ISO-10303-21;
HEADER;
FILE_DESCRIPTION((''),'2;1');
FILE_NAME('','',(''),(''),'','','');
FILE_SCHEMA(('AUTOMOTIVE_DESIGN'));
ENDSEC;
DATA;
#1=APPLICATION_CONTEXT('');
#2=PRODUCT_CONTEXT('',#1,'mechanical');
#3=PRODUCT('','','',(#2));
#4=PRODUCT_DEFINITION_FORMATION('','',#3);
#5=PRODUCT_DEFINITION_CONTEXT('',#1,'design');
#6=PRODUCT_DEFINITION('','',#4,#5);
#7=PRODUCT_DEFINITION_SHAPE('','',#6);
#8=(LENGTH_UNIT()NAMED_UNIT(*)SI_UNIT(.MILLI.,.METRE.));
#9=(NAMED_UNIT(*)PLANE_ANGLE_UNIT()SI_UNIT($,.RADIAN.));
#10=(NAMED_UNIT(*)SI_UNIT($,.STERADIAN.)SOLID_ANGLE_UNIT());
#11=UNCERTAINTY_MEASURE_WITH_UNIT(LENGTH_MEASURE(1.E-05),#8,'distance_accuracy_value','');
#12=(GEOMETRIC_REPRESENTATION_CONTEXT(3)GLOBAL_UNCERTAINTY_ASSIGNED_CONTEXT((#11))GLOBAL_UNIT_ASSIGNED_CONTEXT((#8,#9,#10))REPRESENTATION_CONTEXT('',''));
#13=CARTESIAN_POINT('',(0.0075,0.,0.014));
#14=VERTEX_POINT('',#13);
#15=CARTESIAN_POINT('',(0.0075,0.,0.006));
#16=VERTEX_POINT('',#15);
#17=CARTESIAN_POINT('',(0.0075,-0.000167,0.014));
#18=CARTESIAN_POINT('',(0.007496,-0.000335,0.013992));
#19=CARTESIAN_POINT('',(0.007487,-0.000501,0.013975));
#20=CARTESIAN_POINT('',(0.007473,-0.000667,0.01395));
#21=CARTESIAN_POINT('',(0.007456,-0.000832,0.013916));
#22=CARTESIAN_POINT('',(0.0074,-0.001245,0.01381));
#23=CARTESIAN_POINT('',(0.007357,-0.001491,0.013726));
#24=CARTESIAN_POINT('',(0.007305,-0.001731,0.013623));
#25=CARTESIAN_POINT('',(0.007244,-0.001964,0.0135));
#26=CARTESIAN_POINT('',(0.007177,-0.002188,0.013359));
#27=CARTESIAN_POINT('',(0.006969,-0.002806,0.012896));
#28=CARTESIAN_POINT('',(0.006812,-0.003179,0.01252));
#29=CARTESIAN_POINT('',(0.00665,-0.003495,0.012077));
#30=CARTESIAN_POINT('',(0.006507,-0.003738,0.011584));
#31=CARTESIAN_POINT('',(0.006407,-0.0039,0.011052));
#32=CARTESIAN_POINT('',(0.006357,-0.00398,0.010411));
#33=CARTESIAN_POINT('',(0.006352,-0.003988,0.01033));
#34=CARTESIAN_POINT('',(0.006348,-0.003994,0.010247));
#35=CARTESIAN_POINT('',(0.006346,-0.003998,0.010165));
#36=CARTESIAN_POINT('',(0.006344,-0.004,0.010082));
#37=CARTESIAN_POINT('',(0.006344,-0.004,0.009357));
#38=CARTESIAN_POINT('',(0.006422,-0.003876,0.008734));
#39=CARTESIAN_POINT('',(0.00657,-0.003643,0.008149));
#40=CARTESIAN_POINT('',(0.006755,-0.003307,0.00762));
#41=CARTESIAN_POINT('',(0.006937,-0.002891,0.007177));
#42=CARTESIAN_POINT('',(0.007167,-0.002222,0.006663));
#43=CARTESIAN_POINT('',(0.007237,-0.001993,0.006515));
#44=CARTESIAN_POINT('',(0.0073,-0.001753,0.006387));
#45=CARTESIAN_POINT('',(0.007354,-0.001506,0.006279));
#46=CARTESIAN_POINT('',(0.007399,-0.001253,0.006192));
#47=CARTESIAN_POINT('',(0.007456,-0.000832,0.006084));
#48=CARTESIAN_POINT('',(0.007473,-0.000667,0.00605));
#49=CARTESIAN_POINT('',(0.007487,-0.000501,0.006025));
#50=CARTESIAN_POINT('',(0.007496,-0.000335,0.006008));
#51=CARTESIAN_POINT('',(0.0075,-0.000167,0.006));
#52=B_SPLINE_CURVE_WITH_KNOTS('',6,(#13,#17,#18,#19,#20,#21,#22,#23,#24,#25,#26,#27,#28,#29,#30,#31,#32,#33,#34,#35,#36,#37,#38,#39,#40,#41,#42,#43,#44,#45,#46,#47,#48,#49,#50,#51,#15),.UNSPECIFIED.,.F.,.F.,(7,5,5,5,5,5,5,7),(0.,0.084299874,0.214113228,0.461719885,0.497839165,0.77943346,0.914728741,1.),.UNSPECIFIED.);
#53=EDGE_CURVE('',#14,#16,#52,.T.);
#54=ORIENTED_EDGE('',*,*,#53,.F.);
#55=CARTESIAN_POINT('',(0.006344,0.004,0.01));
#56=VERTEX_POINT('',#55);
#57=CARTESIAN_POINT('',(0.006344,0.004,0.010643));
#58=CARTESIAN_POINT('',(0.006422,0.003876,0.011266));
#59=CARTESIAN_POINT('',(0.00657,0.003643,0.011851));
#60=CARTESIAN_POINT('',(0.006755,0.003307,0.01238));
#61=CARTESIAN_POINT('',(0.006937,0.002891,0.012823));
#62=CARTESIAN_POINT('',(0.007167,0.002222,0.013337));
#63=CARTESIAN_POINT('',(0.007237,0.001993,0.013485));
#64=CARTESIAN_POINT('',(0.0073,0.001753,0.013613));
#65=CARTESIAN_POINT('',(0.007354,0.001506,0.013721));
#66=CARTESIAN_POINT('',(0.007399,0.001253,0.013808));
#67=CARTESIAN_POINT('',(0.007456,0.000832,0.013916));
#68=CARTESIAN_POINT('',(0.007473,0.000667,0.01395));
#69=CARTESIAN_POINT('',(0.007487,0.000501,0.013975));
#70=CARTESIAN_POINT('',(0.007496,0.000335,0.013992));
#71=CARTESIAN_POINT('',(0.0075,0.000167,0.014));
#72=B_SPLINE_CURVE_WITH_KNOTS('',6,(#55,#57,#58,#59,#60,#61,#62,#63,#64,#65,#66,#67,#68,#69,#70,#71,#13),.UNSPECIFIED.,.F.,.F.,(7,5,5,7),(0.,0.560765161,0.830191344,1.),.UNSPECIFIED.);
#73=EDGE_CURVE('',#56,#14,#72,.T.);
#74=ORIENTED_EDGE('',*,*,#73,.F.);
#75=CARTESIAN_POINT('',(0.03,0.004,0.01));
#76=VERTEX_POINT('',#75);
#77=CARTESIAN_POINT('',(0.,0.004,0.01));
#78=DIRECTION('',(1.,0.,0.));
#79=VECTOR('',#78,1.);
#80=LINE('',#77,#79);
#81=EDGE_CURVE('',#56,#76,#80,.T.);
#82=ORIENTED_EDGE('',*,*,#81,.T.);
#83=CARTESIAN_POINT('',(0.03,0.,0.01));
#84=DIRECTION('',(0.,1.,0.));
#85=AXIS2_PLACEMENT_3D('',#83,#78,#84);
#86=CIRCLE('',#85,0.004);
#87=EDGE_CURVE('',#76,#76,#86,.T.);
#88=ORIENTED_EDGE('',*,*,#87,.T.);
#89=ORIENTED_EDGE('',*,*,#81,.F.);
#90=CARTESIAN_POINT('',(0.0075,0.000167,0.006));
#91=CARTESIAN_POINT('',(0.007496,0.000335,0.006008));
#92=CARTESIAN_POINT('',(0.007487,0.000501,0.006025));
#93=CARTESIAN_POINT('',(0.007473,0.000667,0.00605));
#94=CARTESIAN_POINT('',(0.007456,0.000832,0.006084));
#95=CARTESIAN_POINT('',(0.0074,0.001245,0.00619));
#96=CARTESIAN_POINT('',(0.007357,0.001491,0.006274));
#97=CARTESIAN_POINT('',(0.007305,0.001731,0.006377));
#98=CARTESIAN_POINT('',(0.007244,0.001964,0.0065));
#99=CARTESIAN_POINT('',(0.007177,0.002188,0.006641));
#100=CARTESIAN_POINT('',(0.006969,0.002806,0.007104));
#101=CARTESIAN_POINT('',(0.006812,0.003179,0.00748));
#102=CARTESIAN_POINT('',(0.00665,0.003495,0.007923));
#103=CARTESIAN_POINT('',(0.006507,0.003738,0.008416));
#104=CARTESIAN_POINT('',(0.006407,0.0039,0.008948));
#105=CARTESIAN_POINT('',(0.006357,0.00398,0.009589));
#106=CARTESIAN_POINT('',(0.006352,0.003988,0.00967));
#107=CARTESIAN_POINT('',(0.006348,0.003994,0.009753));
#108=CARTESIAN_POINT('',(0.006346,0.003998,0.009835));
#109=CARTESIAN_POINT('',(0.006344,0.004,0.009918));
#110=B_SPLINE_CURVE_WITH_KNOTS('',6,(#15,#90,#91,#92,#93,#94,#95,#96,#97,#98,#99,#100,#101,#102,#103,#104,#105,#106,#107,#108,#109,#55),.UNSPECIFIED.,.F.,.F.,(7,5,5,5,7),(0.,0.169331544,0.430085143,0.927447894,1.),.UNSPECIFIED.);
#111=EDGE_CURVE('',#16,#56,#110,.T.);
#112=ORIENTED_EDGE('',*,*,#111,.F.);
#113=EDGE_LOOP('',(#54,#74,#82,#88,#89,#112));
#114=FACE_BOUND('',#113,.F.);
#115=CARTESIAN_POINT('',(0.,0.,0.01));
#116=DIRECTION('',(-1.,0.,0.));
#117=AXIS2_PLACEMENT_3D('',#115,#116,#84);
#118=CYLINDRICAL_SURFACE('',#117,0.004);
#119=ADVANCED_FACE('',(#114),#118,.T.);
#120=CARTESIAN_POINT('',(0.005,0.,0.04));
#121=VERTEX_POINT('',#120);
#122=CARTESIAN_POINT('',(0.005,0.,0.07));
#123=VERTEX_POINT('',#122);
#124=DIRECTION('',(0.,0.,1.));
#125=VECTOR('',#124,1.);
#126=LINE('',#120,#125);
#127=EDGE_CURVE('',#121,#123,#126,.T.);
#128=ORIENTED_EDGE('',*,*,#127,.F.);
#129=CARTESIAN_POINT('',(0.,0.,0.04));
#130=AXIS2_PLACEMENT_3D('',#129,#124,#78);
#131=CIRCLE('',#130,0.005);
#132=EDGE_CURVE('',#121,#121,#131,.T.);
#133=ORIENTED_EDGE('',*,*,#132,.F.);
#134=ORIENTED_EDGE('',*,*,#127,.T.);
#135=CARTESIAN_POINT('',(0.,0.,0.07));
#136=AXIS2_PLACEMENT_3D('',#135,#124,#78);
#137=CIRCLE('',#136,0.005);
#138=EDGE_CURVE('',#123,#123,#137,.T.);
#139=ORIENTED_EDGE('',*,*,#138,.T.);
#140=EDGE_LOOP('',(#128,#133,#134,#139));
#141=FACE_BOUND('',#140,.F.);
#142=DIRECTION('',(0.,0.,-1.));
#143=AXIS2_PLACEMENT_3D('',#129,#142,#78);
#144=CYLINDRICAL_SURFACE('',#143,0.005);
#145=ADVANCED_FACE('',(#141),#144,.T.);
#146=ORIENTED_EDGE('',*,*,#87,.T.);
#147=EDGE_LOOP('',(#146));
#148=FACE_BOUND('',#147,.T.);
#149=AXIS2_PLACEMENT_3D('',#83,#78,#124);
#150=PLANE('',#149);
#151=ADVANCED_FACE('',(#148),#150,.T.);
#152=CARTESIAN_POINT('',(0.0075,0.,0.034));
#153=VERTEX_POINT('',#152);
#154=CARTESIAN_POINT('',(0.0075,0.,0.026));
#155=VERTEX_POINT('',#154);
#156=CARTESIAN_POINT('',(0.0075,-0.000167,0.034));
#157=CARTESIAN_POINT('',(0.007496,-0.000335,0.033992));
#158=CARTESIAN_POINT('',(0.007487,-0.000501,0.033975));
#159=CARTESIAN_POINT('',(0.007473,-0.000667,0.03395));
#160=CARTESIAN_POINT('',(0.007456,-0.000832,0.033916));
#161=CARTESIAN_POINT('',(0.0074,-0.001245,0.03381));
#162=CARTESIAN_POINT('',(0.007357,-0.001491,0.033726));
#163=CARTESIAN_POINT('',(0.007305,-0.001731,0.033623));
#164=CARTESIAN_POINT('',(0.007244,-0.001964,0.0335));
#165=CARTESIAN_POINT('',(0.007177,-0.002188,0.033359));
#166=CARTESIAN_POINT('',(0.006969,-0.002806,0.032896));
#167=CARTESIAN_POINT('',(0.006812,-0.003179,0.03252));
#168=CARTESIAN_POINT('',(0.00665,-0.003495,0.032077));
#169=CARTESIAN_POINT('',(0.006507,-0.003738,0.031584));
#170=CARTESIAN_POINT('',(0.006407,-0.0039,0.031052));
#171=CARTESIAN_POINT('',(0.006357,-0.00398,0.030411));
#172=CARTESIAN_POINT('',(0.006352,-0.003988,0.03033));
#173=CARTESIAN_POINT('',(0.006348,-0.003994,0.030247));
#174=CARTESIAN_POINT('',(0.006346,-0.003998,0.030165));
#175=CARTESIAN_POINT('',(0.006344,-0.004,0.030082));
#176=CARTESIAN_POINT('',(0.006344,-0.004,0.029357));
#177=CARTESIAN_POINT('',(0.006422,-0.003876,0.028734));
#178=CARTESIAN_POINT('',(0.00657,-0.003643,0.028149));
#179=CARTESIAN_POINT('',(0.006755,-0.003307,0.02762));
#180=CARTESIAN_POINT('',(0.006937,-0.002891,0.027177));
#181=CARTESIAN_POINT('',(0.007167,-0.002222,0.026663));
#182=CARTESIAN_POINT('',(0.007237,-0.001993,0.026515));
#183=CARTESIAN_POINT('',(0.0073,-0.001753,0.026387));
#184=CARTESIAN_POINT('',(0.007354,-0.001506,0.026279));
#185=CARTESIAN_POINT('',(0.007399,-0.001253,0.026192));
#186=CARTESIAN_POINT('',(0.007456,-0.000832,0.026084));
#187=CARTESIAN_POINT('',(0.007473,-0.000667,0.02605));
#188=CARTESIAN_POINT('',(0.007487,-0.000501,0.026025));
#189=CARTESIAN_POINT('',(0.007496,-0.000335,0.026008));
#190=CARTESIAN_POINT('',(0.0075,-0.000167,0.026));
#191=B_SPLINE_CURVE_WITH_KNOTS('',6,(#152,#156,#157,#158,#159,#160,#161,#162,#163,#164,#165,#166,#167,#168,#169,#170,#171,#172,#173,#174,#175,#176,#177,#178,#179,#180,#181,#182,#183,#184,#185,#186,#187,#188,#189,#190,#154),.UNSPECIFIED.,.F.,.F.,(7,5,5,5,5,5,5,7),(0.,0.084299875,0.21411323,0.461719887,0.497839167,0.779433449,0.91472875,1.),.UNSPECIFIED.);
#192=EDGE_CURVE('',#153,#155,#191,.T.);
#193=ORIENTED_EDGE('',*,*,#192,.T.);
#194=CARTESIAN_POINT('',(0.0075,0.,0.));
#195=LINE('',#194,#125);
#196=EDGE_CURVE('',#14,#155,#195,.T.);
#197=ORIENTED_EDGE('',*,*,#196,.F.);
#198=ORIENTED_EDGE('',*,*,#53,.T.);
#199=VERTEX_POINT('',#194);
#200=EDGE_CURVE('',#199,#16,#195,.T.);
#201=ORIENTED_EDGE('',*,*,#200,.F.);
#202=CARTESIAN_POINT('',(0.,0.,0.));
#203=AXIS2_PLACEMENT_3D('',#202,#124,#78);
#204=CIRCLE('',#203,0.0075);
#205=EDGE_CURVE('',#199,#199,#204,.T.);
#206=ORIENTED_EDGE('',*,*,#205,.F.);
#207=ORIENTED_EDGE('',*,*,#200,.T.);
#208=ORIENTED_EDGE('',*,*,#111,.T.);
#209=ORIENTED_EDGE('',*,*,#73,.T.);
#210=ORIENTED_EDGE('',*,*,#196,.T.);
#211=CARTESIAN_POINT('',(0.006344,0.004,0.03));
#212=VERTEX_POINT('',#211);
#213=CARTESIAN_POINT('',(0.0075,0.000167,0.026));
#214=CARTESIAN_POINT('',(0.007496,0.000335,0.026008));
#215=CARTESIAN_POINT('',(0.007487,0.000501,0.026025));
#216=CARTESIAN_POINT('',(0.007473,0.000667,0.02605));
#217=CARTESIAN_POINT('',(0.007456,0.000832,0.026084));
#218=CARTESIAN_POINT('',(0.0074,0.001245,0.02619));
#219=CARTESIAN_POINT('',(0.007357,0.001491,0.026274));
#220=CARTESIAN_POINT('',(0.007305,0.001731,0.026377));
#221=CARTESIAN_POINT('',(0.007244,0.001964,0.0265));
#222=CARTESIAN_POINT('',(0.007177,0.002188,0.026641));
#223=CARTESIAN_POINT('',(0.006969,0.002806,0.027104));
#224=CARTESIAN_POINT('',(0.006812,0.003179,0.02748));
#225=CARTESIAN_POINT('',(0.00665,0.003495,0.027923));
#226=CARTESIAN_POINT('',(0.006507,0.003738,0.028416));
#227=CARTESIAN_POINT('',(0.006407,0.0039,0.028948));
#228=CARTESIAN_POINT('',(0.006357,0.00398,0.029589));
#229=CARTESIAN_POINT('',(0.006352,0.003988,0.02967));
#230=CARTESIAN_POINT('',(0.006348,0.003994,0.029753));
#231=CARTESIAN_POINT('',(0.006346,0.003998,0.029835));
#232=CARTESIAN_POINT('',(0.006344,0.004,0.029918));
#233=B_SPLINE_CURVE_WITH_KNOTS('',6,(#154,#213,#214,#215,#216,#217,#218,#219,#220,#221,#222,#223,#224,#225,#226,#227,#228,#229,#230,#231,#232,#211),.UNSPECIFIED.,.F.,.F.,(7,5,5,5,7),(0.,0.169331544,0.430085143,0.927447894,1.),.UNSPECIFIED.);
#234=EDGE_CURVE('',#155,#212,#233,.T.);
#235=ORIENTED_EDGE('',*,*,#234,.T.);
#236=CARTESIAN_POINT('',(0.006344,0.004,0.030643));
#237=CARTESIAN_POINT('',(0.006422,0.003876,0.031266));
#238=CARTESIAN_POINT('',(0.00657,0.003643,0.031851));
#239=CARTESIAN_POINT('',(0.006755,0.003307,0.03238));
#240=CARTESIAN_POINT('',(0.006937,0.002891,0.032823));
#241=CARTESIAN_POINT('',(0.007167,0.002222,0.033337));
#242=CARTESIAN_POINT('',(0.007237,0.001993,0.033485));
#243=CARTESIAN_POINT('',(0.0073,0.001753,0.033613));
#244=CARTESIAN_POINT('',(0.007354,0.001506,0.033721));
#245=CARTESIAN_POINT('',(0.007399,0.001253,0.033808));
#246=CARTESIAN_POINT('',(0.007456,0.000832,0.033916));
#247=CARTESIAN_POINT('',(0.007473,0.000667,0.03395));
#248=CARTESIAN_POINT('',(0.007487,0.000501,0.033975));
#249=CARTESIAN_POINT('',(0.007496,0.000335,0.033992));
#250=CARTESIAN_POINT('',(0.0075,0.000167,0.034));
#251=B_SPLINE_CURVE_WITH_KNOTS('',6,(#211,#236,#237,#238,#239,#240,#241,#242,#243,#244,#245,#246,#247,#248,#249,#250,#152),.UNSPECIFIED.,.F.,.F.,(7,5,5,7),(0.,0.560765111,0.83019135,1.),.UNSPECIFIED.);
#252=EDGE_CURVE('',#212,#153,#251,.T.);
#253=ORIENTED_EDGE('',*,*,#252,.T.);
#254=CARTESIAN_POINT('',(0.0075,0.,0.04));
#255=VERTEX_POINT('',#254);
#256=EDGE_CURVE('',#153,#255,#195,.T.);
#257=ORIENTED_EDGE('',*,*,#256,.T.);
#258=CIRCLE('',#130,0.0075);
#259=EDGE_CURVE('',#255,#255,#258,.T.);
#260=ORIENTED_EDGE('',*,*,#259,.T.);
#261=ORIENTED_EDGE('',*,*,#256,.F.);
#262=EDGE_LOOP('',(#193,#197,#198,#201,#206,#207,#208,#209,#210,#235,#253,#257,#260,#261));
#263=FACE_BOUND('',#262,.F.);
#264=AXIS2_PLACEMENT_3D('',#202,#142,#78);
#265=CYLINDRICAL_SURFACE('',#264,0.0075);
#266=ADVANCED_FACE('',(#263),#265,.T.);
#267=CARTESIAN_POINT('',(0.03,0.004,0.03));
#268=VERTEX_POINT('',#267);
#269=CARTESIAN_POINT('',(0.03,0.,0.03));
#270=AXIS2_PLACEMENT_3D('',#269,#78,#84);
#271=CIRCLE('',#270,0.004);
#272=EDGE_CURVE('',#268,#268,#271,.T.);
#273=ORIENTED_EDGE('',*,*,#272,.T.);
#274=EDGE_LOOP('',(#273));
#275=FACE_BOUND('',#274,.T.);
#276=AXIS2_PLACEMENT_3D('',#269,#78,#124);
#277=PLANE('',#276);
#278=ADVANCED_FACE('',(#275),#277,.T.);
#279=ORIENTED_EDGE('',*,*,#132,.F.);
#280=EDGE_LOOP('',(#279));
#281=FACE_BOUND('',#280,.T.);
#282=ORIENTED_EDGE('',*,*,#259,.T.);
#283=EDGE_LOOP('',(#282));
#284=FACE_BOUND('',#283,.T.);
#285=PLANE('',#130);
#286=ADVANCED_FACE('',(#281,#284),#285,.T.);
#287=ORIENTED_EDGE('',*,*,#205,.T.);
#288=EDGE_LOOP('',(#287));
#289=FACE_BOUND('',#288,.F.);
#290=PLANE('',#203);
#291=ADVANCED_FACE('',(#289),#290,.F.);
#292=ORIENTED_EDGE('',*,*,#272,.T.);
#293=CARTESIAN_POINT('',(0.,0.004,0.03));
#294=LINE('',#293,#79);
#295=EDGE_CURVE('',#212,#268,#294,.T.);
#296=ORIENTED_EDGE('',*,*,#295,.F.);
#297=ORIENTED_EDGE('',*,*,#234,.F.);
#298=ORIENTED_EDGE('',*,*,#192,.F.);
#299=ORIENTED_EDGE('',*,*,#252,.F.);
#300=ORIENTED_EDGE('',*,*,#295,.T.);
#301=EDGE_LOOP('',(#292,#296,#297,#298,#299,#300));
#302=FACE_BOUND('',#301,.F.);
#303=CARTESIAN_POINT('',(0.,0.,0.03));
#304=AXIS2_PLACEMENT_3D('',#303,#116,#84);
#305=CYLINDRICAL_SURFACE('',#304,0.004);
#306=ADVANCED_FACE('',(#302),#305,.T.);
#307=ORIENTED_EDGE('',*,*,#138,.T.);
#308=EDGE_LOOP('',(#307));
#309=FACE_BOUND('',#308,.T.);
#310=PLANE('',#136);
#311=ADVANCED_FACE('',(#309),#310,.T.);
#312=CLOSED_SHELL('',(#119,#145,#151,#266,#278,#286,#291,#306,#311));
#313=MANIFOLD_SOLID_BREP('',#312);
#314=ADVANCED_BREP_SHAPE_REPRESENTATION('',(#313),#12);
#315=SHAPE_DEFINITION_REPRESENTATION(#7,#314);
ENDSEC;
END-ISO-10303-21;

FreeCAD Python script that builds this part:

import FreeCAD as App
import Part
import Sketcher
from FreeCAD import Vector
Q = App.Units.Quantity

doc = App.newDocument("Part")
params = doc.addObject("Spreadsheet::Sheet", "Params")
for row, (alias, value) in enumerate([
    ("pad1_length", "0.04 mm"),
    ("sketch2_diameter", "0.01 mm"),
    ("pad2_length", "0.03 mm"),
    ("pad3_length", "0.03 mm"),
], start=1):
    params.set(f"A{row}", alias)
    params.set(f"B{row}", "=" + value)
    params.setAlias(f"B{row}", alias)

body = doc.addObject("PartDesign::Body", "Body")

# Sketch on XY plane
sketch1 = body.newObject("Sketcher::SketchObject", "Sketch")
sketch1.AttachmentSupport = (doc.getObject("XY_Plane"), [""])
sketch1.MapMode = "FlatFace"
sketch1.addGeometry(Part.Circle(Vector(0, 0, 0), Vector(0, 0, 1), 0.007), False)
sketch1.addConstraint(Sketcher.Constraint("Coincident", 0, 3, -1, 1))
sketch1.addConstraint(Sketcher.Constraint("Diameter", 0, Q("0.015 mm")))
pad1 = body.newObject("PartDesign::Pad", "Pad")
pad1.Profile = sketch1
pad1.setExpression("Length", "Params.pad1_length")

# Sketch on XY plane
sketch2 = body.newObject("Sketcher::SketchObject", "Sketch001")
sketch2.AttachmentSupport = (doc.getObject("XY_Plane"), [""])
sketch2.MapMode = "FlatFace"
sketch2.AttachmentOffset = App.Placement(Vector(0, 0, 0.04), App.Rotation())
sketch2.addGeometry(Part.Circle(Vector(0, 0, 0), Vector(0, 0, 1), 0.005), False)
sketch2.addConstraint(Sketcher.Constraint("Coincident", 0, 3, -1, 1))
sketch2.addConstraint(Sketcher.Constraint("Diameter", 0, Q("0.01 mm")))
sketch2.setExpression("Constraints[1]", "Params.sketch2_diameter")
pad2 = body.newObject("PartDesign::Pad", "Pad001")
pad2.Profile = sketch2
pad2.setExpression("Length", "Params.pad2_length")

# Sketch on YZ plane
sketch3 = body.newObject("Sketcher::SketchObject", "Sketch002")
sketch3.AttachmentSupport = (doc.getObject("YZ_Plane"), [""])
sketch3.MapMode = "FlatFace"
sketch3.addGeometry(Part.Circle(Vector(0, 0.01, 0), Vector(0, 0, 1), 0.004), False)
sketch3.addGeometry(Part.Circle(Vector(0, 0.03, 0), Vector(0, 0, 1), 0.004), False)
sketch3.addConstraint(Sketcher.Constraint("Equal", 0, 1))
sketch3.addConstraint(Sketcher.Constraint("PointOnObject", 0, 3, -2))
sketch3.addConstraint(Sketcher.Constraint("PointOnObject", 1, 3, -2))
sketch3.addConstraint(Sketcher.Constraint("Diameter", 0, Q("0.008 mm")))
sketch3.addConstraint(Sketcher.Constraint("DistanceY", -1, 1, 0, 3, Q("0.01 mm")))
sketch3.addConstraint(Sketcher.Constraint("DistanceY", -1, 1, 1, 3, Q("0.03 mm")))
pad3 = body.newObject("PartDesign::Pad", "Pad002")
pad3.Profile = sketch3
pad3.setExpression("Length", "Params.pad3_length")

doc.recompute()
